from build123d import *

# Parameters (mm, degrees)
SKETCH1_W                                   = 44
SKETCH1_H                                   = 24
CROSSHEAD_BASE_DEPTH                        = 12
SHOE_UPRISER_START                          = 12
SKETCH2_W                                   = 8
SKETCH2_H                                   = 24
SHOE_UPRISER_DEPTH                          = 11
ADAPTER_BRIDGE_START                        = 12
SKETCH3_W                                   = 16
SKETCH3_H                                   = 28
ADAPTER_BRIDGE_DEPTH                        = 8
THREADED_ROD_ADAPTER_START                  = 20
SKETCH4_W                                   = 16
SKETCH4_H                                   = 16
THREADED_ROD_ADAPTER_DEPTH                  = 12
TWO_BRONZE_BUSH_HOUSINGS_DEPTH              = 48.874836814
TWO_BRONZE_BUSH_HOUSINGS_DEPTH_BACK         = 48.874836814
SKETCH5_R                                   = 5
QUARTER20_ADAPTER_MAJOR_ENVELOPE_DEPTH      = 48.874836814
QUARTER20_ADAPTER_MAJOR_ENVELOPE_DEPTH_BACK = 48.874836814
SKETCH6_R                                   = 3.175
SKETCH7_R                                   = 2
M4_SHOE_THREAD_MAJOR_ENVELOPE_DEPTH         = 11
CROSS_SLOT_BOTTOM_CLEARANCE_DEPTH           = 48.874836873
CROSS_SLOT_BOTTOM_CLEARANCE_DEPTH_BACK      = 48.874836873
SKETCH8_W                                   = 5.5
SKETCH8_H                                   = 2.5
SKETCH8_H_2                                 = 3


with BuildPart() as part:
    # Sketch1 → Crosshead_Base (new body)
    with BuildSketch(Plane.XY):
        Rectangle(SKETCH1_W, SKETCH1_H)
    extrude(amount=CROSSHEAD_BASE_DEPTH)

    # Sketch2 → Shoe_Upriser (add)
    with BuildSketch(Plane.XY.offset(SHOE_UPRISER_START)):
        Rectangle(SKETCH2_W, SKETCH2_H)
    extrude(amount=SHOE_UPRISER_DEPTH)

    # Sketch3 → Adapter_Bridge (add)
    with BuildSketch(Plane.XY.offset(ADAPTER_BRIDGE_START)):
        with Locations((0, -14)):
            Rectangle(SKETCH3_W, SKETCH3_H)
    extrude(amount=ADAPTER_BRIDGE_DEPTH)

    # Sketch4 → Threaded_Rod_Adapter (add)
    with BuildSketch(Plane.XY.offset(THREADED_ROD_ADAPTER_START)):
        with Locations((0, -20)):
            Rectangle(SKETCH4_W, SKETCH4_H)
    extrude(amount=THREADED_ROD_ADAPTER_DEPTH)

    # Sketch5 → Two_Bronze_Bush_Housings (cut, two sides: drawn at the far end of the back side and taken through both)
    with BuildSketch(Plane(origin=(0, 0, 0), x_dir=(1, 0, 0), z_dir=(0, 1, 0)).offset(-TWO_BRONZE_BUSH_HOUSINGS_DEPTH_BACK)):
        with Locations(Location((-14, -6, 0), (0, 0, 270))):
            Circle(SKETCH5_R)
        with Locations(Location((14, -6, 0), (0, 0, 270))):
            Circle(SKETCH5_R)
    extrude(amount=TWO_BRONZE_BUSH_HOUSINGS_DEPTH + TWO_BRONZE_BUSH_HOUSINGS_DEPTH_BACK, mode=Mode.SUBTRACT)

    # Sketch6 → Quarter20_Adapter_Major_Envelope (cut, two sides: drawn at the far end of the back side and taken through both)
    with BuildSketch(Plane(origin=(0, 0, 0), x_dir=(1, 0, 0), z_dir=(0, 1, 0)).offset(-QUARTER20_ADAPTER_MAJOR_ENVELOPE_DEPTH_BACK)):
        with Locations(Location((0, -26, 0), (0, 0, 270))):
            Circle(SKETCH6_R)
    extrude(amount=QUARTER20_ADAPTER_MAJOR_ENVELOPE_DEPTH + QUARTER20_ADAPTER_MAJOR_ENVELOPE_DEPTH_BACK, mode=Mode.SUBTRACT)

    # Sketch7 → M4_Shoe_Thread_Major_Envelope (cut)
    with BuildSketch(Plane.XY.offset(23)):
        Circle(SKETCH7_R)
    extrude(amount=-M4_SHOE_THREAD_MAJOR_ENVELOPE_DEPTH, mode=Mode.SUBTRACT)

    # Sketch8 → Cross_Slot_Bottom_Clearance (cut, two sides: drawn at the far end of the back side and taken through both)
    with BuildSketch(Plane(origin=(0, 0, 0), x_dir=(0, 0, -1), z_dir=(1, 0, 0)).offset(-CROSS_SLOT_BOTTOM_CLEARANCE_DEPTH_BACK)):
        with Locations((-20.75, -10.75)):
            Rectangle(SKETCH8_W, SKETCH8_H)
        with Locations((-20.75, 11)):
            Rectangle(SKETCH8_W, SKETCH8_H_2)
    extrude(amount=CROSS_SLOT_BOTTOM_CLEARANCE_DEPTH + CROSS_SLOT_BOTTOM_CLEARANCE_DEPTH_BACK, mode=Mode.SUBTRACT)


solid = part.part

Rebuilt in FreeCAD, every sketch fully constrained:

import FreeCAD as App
import Part
import Sketcher
from FreeCAD import Vector

doc = App.newDocument("Part")
body = doc.addObject("PartDesign::Body", "Body")

# Sketch on XY plane
sketch1 = body.newObject("Sketcher::SketchObject", "Sketch")
sketch1.AttachmentSupport = (doc.getObject("XY_Plane"), [""])
sketch1.MapMode = "FlatFace"
sketch1.addGeometry(Part.LineSegment(Vector(-22, 12, 0), Vector(-22, -12, 0)), False)
sketch1.addGeometry(Part.LineSegment(Vector(-22, -12, 0), Vector(22, -12, 0)), False)
sketch1.addGeometry(Part.LineSegment(Vector(22, -12, 0), Vector(22, 12, 0)), False)
sketch1.addGeometry(Part.LineSegment(Vector(22, 12, 0), Vector(-22, 12, 0)), False)
sketch1.addConstraint(Sketcher.Constraint("Coincident", 0, 2, 1, 1))
sketch1.addConstraint(Sketcher.Constraint("Coincident", 1, 2, 2, 1))
sketch1.addConstraint(Sketcher.Constraint("Coincident", 2, 2, 3, 1))
sketch1.addConstraint(Sketcher.Constraint("Coincident", 3, 2, 0, 1))
sketch1.addConstraint(Sketcher.Constraint("Vertical", 0))
sketch1.addConstraint(Sketcher.Constraint("Horizontal", 1))
sketch1.addConstraint(Sketcher.Constraint("Vertical", 2))
sketch1.addConstraint(Sketcher.Constraint("Horizontal", 3))
sketch1.addConstraint(Sketcher.Constraint("Symmetric", 0, 2, 2, 2, -1, 1))
sketch1.addConstraint(Sketcher.Constraint("DistanceX", 1, 1, 1, 2, 44.0))
sketch1.addConstraint(Sketcher.Constraint("DistanceY", 0, 2, 0, 1, 24.0))
pad1 = body.newObject("PartDesign::Pad", "Pad")
pad1.Profile = sketch1
pad1.Length = 12

# Sketch on XY plane
sketch2 = body.newObject("Sketcher::SketchObject", "Sketch001")
sketch2.AttachmentSupport = (doc.getObject("XY_Plane"), [""])
sketch2.MapMode = "FlatFace"
sketch2.AttachmentOffset = App.Placement(Vector(0, 0, 12), App.Rotation())
sketch2.addGeometry(Part.LineSegment(Vector(-4, 12, 0), Vector(-4, -12, 0)), False)
sketch2.addGeometry(Part.LineSegment(Vector(-4, -12, 0), Vector(4, -12, 0)), False)
sketch2.addGeometry(Part.LineSegment(Vector(4, -12, 0), Vector(4, 12, 0)), False)
sketch2.addGeometry(Part.LineSegment(Vector(4, 12, 0), Vector(-4, 12, 0)), False)
sketch2.addConstraint(Sketcher.Constraint("Coincident", 0, 2, 1, 1))
sketch2.addConstraint(Sketcher.Constraint("Coincident", 1, 2, 2, 1))
sketch2.addConstraint(Sketcher.Constraint("Coincident", 2, 2, 3, 1))
sketch2.addConstraint(Sketcher.Constraint("Coincident", 3, 2, 0, 1))
sketch2.addConstraint(Sketcher.Constraint("Vertical", 0))
sketch2.addConstraint(Sketcher.Constraint("Horizontal", 1))
sketch2.addConstraint(Sketcher.Constraint("Vertical", 2))
sketch2.addConstraint(Sketcher.Constraint("Horizontal", 3))
sketch2.addConstraint(Sketcher.Constraint("Symmetric", 0, 2, 2, 2, -1, 1))
sketch2.addConstraint(Sketcher.Constraint("DistanceX", 1, 1, 1, 2, 8.0))
sketch2.addConstraint(Sketcher.Constraint("DistanceY", 0, 2, 0, 1, 24.0))
pad2 = body.newObject("PartDesign::Pad", "Pad001")
pad2.Profile = sketch2
pad2.Length = 11

# Sketch on XY plane
sketch3 = body.newObject("Sketcher::SketchObject", "Sketch002")
sketch3.AttachmentSupport = (doc.getObject("XY_Plane"), [""])
sketch3.MapMode = "FlatFace"
sketch3.AttachmentOffset = App.Placement(Vector(0, 0, 12), App.Rotation())
sketch3.addGeometry(Part.LineSegment(Vector(-8, 0, 0), Vector(-8, -28, 0)), False)
sketch3.addGeometry(Part.LineSegment(Vector(-8, -28, 0), Vector(8, -28, 0)), False)
sketch3.addGeometry(Part.LineSegment(Vector(8, -28, 0), Vector(8, 0, 0)), False)
sketch3.addGeometry(Part.LineSegment(Vector(8, 0, 0), Vector(-8, 0, 0)), False)
sketch3.addConstraint(Sketcher.Constraint("Coincident", 0, 2, 1, 1))
sketch3.addConstraint(Sketcher.Constraint("Coincident", 1, 2, 2, 1))
sketch3.addConstraint(Sketcher.Constraint("Coincident", 2, 2, 3, 1))
sketch3.addConstraint(Sketcher.Constraint("Coincident", 3, 2, 0, 1))
sketch3.addConstraint(Sketcher.Constraint("Vertical", 0))
sketch3.addConstraint(Sketcher.Constraint("Horizontal", 1))
sketch3.addConstraint(Sketcher.Constraint("Vertical", 2))
sketch3.addConstraint(Sketcher.Constraint("Horizontal", 3))
sketch3.addConstraint(Sketcher.Constraint("Symmetric", 2, 2, 3, 2, -1, 1))
sketch3.addConstraint(Sketcher.Constraint("DistanceX", 1, 1, 1, 2, 16.0))
sketch3.addConstraint(Sketcher.Constraint("DistanceY", 0, 2, 0, 1, 28.0))
pad3 = body.newObject("PartDesign::Pad", "Pad002")
pad3.Profile = sketch3
pad3.Length = 8

# Sketch on XY plane
sketch4 = body.newObject("Sketcher::SketchObject", "Sketch003")
sketch4.AttachmentSupport = (doc.getObject("XY_Plane"), [""])
sketch4.MapMode = "FlatFace"
sketch4.AttachmentOffset = App.Placement(Vector(0, 0, 20), App.Rotation())
sketch4.addGeometry(Part.LineSegment(Vector(-8, -12, 0), Vector(-8, -28, 0)), False)
sketch4.addGeometry(Part.LineSegment(Vector(-8, -28, 0), Vector(8, -28, 0)), False)
sketch4.addGeometry(Part.LineSegment(Vector(8, -28, 0), Vector(8, -12, 0)), False)
sketch4.addGeometry(Part.LineSegment(Vector(8, -12, 0), Vector(-8, -12, 0)), False)
sketch4.addConstraint(Sketcher.Constraint("Coincident", 0, 2, 1, 1))
sketch4.addConstraint(Sketcher.Constraint("Coincident", 1, 2, 2, 1))
sketch4.addConstraint(Sketcher.Constraint("Coincident", 2, 2, 3, 1))
sketch4.addConstraint(Sketcher.Constraint("Coincident", 3, 2, 0, 1))
sketch4.addConstraint(Sketcher.Constraint("Vertical", 0))
sketch4.addConstraint(Sketcher.Constraint("Horizontal", 1))
sketch4.addConstraint(Sketcher.Constraint("Vertical", 2))
sketch4.addConstraint(Sketcher.Constraint("Horizontal", 3))
sketch4.addConstraint(Sketcher.Constraint("Equal", 3, 0))
sketch4.addConstraint(Sketcher.Constraint("DistanceX", 1, 1, 1, 2, 16.0))
sketch4.addConstraint(Sketcher.Constraint("DistanceX", 0, 2, -1, 1, 8.0))
sketch4.addConstraint(Sketcher.Constraint("DistanceY", 0, 2, -1, 1, 28.0))
pad4 = body.newObject("PartDesign::Pad", "Pad003")
pad4.Profile = sketch4
pad4.Length = 12

# Sketch on XZ plane
sketch5 = body.newObject("Sketcher::SketchObject", "Sketch004")
sketch5.AttachmentSupport = (doc.getObject("XZ_Plane"), [""])
sketch5.MapMode = "FlatFace"
sketch5.addGeometry(Part.Circle(Vector(-14, 6, 0), Vector(0, 0, 1), 5), False)
sketch5.addGeometry(Part.Circle(Vector(14, 6, 0), Vector(0, 0, 1), 5), False)
sketch5.addConstraint(Sketcher.Constraint("Equal", 0, 1))
sketch5.addConstraint(Sketcher.Constraint("Symmetric", 0, 3, 1, 3, -2))
sketch5.addConstraint(Sketcher.Constraint("Diameter", 0, 10.0))
sketch5.addConstraint(Sketcher.Constraint("DistanceX", 0, 3, -1, 1, 14.0))
sketch5.addConstraint(Sketcher.Constraint("DistanceY", -1, 1, 0, 3, 6.0))
pocket1 = body.newObject("PartDesign::Pocket", "Pocket")
pocket1.Profile = sketch5
pocket1.Type = "ThroughAll"
pocket1.Midplane = True

# Sketch on XZ plane
sketch6 = body.newObject("Sketcher::SketchObject", "Sketch005")
sketch6.AttachmentSupport = (doc.getObject("XZ_Plane"), [""])
sketch6.MapMode = "FlatFace"
sketch6.addGeometry(Part.Circle(Vector(0, 26, 0), Vector(0, 0, 1), 3.2), False)
sketch6.addConstraint(Sketcher.Constraint("PointOnObject", 0, 3, -2))
sketch6.addConstraint(Sketcher.Constraint("Diameter", 0, 6.35))
sketch6.addConstraint(Sketcher.Constraint("DistanceY", -1, 1, 0, 3, 26.0))
pocket2 = body.newObject("PartDesign::Pocket", "Pocket001")
pocket2.Profile = sketch6
pocket2.Type = "ThroughAll"
pocket2.Midplane = True

# Sketch on XY plane
sketch7 = body.newObject("Sketcher::SketchObject", "Sketch006")
sketch7.AttachmentSupport = (doc.getObject("XY_Plane"), [""])
sketch7.MapMode = "FlatFace"
sketch7.AttachmentOffset = App.Placement(Vector(0, 0, 23), App.Rotation())
sketch7.addGeometry(Part.Circle(Vector(0, 0, 0), Vector(0, 0, 1), 2), False)
sketch7.addConstraint(Sketcher.Constraint("Coincident", 0, 3, -1, 1))
sketch7.addConstraint(Sketcher.Constraint("Diameter", 0, 4.0))
pocket3 = body.newObject("PartDesign::Pocket", "Pocket002")
pocket3.Profile = sketch7
pocket3.Length = 11

# Sketch on YZ plane
sketch8 = body.newObject("Sketcher::SketchObject", "Sketch007")
sketch8.AttachmentSupport = (doc.getObject("YZ_Plane"), [""])
sketch8.MapMode = "FlatFace"
sketch8.addGeometry(Part.LineSegment(Vector(-9.5, 23.5, 0), Vector(-12, 23.5, 0)), False)
sketch8.addGeometry(Part.LineSegment(Vector(-12, 23.5, 0), Vector(-12, 18, 0)), False)
sketch8.addGeometry(Part.LineSegment(Vector(-12, 18, 0), Vector(-9.5, 18, 0)), False)
sketch8.addGeometry(Part.LineSegment(Vector(-9.5, 18, 0), Vector(-9.5, 23.5, 0)), False)
sketch8.addGeometry(Part.LineSegment(Vector(12.5, 23.5, 0), Vector(9.5, 23.5, 0)), False)
sketch8.addGeometry(Part.LineSegment(Vector(9.5, 23.5, 0), Vector(9.5, 18, 0)), False)
sketch8.addGeometry(Part.LineSegment(Vector(9.5, 18, 0), Vector(12.5, 18, 0)), False)
sketch8.addGeometry(Part.LineSegment(Vector(12.5, 18, 0), Vector(12.5, 23.5, 0)), False)
sketch8.addConstraint(Sketcher.Constraint("Coincident", 0, 2, 1, 1))
sketch8.addConstraint(Sketcher.Constraint("Coincident", 1, 2, 2, 1))
sketch8.addConstraint(Sketcher.Constraint("Coincident", 2, 2, 3, 1))
sketch8.addConstraint(Sketcher.Constraint("Coincident", 3, 2, 0, 1))
sketch8.addConstraint(Sketcher.Constraint("Coincident", 4, 2, 5, 1))
sketch8.addConstraint(Sketcher.Constraint("Coincident", 5, 2, 6, 1))
sketch8.addConstraint(Sketcher.Constraint("Coincident", 6, 2, 7, 1))
sketch8.addConstraint(Sketcher.Constraint("Coincident", 7, 2, 4, 1))
sketch8.addConstraint(Sketcher.Constraint("Horizontal", 0))
sketch8.addConstraint(Sketcher.Constraint("Vertical", 1))
sketch8.addConstraint(Sketcher.Constraint("Horizontal", 2))
sketch8.addConstraint(Sketcher.Constraint("Vertical", 3))
sketch8.addConstraint(Sketcher.Constraint("Horizontal", 4))
sketch8.addConstraint(Sketcher.Constraint("Vertical", 5))
sketch8.addConstraint(Sketcher.Constraint("Horizontal", 6))
sketch8.addConstraint(Sketcher.Constraint("Vertical", 7))
sketch8.addConstraint(Sketcher.Constraint("Symmetric", 3, 2, 4, 2, -2))
sketch8.addConstraint(Sketcher.Constraint("Horizontal", 2, 2, 5, 2))
sketch8.addConstraint(Sketcher.Constraint("DistanceX", 4, 2, 4, 1, 3.0))
sketch8.addConstraint(Sketcher.Constraint("DistanceX", 0, 2, 0, 1, 2.5))
sketch8.addConstraint(Sketcher.Constraint("DistanceY", 1, 2, 1, 1, 5.5))
sketch8.addConstraint(Sketcher.Constraint("DistanceX", 0, 2, -1, 1, 12.0))
sketch8.addConstraint(Sketcher.Constraint("DistanceY", -1, 1, 1, 2, 18.0))
pocket4 = body.newObject("PartDesign::Pocket", "Pocket003")
pocket4.Profile = sketch8
pocket4.Type = "ThroughAll"
pocket4.Midplane = True

doc.recompute()
